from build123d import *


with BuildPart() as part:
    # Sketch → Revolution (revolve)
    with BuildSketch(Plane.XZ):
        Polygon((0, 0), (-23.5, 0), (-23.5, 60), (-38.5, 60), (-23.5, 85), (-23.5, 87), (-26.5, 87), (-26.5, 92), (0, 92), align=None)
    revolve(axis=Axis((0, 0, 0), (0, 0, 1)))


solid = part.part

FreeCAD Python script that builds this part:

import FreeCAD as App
import Part
import Sketcher
from FreeCAD import Vector

doc = App.newDocument("Part")
body = doc.addObject("PartDesign::Body", "Body")

# Sketch on XZ plane
sketch1 = doc.addObject("Sketcher::SketchObject", "Sketch")
body.addObject(sketch1)
sketch1.AttachmentSupport = (doc.XZ_Plane, [""])
sketch1.MapMode = "FlatFace"
sketch1.addGeometry(Part.LineSegment(Vector(-23.5, 0, 0), Vector(0, 0, 0)), False)
sketch1.addGeometry(Part.LineSegment(Vector(0, 0, 0), Vector(0, 92, 0)), False)
sketch1.addGeometry(Part.LineSegment(Vector(0, 92, 0), Vector(-26.5, 92, 0)), False)
sketch1.addGeometry(Part.LineSegment(Vector(-26.5, 92, 0), Vector(-26.5, 87, 0)), False)
sketch1.addGeometry(Part.LineSegment(Vector(-26.5, 87, 0), Vector(-23.5, 87, 0)), False)
sketch1.addGeometry(Part.LineSegment(Vector(-23.5, 87, 0), Vector(-23.5, 85, 0)), False)
sketch1.addGeometry(Part.LineSegment(Vector(-23.5, 85, 0), Vector(-38.5, 60, 0)), False)
sketch1.addGeometry(Part.LineSegment(Vector(-38.5, 60, 0), Vector(-23.5, 60, 0)), False)
sketch1.addGeometry(Part.LineSegment(Vector(-23.5, 60, 0), Vector(-23.5, 0, 0)), False)
sketch1.addConstraint(Sketcher.Constraint("Coincident", 0, 2, 1, 1))
sketch1.addConstraint(Sketcher.Constraint("Coincident", 1, 2, 2, 1))
sketch1.addConstraint(Sketcher.Constraint("Coincident", 2, 2, 3, 1))
sketch1.addConstraint(Sketcher.Constraint("Coincident", 3, 2, 4, 1))
sketch1.addConstraint(Sketcher.Constraint("Coincident", 4, 2, 5, 1))
sketch1.addConstraint(Sketcher.Constraint("Coincident", 5, 2, 6, 1))
sketch1.addConstraint(Sketcher.Constraint("Coincident", 6, 2, 7, 1))
sketch1.addConstraint(Sketcher.Constraint("Coincident", 7, 2, 8, 1))
sketch1.addConstraint(Sketcher.Constraint("Coincident", 8, 2, 0, 1))
sketch1.addConstraint(Sketcher.Constraint("Horizontal", 0))
sketch1.addConstraint(Sketcher.Constraint("Vertical", 1))
sketch1.addConstraint(Sketcher.Constraint("Horizontal", 2))
sketch1.addConstraint(Sketcher.Constraint("Vertical", 3))
sketch1.addConstraint(Sketcher.Constraint("Horizontal", 4))
sketch1.addConstraint(Sketcher.Constraint("Vertical", 5))
sketch1.addConstraint(Sketcher.Constraint("Horizontal", 7))
sketch1.addConstraint(Sketcher.Constraint("Vertical", 8))
sketch1.addConstraint(Sketcher.Constraint("Coincident", 0, 2, -1, 1))
sketch1.addConstraint(Sketcher.Constraint("Vertical", 5, 2, 7, 2))
sketch1.addConstraint(Sketcher.Constraint("DistanceX", 4, 1, 4, 2, 3.0))
sketch1.addConstraint(Sketcher.Constraint("DistanceX", 7, 1, 7, 2, 15.0))
sketch1.addConstraint(Sketcher.Constraint("DistanceY", 1, 1, 1, 2, 92.0))
sketch1.addConstraint(Sketcher.Constraint("DistanceY", 3, 2, 3, 1, 5.0))
sketch1.addConstraint(Sketcher.Constraint("DistanceY", 5, 2, 5, 1, 2.0))
sketch1.addConstraint(Sketcher.Constraint("DistanceY", 8, 2, 8, 1, 60.0))
sketch1.addConstraint(Sketcher.Constraint("DistanceX", 0, 1, 0, 2, 23.5))
revolution = doc.addObject("PartDesign::Revolution", "Revolution")
body.addObject(revolution)
revolution.Profile = sketch1
revolution.ReferenceAxis = (sketch1, ["V_Axis"])
revolution.Angle = 360

doc.recompute()
